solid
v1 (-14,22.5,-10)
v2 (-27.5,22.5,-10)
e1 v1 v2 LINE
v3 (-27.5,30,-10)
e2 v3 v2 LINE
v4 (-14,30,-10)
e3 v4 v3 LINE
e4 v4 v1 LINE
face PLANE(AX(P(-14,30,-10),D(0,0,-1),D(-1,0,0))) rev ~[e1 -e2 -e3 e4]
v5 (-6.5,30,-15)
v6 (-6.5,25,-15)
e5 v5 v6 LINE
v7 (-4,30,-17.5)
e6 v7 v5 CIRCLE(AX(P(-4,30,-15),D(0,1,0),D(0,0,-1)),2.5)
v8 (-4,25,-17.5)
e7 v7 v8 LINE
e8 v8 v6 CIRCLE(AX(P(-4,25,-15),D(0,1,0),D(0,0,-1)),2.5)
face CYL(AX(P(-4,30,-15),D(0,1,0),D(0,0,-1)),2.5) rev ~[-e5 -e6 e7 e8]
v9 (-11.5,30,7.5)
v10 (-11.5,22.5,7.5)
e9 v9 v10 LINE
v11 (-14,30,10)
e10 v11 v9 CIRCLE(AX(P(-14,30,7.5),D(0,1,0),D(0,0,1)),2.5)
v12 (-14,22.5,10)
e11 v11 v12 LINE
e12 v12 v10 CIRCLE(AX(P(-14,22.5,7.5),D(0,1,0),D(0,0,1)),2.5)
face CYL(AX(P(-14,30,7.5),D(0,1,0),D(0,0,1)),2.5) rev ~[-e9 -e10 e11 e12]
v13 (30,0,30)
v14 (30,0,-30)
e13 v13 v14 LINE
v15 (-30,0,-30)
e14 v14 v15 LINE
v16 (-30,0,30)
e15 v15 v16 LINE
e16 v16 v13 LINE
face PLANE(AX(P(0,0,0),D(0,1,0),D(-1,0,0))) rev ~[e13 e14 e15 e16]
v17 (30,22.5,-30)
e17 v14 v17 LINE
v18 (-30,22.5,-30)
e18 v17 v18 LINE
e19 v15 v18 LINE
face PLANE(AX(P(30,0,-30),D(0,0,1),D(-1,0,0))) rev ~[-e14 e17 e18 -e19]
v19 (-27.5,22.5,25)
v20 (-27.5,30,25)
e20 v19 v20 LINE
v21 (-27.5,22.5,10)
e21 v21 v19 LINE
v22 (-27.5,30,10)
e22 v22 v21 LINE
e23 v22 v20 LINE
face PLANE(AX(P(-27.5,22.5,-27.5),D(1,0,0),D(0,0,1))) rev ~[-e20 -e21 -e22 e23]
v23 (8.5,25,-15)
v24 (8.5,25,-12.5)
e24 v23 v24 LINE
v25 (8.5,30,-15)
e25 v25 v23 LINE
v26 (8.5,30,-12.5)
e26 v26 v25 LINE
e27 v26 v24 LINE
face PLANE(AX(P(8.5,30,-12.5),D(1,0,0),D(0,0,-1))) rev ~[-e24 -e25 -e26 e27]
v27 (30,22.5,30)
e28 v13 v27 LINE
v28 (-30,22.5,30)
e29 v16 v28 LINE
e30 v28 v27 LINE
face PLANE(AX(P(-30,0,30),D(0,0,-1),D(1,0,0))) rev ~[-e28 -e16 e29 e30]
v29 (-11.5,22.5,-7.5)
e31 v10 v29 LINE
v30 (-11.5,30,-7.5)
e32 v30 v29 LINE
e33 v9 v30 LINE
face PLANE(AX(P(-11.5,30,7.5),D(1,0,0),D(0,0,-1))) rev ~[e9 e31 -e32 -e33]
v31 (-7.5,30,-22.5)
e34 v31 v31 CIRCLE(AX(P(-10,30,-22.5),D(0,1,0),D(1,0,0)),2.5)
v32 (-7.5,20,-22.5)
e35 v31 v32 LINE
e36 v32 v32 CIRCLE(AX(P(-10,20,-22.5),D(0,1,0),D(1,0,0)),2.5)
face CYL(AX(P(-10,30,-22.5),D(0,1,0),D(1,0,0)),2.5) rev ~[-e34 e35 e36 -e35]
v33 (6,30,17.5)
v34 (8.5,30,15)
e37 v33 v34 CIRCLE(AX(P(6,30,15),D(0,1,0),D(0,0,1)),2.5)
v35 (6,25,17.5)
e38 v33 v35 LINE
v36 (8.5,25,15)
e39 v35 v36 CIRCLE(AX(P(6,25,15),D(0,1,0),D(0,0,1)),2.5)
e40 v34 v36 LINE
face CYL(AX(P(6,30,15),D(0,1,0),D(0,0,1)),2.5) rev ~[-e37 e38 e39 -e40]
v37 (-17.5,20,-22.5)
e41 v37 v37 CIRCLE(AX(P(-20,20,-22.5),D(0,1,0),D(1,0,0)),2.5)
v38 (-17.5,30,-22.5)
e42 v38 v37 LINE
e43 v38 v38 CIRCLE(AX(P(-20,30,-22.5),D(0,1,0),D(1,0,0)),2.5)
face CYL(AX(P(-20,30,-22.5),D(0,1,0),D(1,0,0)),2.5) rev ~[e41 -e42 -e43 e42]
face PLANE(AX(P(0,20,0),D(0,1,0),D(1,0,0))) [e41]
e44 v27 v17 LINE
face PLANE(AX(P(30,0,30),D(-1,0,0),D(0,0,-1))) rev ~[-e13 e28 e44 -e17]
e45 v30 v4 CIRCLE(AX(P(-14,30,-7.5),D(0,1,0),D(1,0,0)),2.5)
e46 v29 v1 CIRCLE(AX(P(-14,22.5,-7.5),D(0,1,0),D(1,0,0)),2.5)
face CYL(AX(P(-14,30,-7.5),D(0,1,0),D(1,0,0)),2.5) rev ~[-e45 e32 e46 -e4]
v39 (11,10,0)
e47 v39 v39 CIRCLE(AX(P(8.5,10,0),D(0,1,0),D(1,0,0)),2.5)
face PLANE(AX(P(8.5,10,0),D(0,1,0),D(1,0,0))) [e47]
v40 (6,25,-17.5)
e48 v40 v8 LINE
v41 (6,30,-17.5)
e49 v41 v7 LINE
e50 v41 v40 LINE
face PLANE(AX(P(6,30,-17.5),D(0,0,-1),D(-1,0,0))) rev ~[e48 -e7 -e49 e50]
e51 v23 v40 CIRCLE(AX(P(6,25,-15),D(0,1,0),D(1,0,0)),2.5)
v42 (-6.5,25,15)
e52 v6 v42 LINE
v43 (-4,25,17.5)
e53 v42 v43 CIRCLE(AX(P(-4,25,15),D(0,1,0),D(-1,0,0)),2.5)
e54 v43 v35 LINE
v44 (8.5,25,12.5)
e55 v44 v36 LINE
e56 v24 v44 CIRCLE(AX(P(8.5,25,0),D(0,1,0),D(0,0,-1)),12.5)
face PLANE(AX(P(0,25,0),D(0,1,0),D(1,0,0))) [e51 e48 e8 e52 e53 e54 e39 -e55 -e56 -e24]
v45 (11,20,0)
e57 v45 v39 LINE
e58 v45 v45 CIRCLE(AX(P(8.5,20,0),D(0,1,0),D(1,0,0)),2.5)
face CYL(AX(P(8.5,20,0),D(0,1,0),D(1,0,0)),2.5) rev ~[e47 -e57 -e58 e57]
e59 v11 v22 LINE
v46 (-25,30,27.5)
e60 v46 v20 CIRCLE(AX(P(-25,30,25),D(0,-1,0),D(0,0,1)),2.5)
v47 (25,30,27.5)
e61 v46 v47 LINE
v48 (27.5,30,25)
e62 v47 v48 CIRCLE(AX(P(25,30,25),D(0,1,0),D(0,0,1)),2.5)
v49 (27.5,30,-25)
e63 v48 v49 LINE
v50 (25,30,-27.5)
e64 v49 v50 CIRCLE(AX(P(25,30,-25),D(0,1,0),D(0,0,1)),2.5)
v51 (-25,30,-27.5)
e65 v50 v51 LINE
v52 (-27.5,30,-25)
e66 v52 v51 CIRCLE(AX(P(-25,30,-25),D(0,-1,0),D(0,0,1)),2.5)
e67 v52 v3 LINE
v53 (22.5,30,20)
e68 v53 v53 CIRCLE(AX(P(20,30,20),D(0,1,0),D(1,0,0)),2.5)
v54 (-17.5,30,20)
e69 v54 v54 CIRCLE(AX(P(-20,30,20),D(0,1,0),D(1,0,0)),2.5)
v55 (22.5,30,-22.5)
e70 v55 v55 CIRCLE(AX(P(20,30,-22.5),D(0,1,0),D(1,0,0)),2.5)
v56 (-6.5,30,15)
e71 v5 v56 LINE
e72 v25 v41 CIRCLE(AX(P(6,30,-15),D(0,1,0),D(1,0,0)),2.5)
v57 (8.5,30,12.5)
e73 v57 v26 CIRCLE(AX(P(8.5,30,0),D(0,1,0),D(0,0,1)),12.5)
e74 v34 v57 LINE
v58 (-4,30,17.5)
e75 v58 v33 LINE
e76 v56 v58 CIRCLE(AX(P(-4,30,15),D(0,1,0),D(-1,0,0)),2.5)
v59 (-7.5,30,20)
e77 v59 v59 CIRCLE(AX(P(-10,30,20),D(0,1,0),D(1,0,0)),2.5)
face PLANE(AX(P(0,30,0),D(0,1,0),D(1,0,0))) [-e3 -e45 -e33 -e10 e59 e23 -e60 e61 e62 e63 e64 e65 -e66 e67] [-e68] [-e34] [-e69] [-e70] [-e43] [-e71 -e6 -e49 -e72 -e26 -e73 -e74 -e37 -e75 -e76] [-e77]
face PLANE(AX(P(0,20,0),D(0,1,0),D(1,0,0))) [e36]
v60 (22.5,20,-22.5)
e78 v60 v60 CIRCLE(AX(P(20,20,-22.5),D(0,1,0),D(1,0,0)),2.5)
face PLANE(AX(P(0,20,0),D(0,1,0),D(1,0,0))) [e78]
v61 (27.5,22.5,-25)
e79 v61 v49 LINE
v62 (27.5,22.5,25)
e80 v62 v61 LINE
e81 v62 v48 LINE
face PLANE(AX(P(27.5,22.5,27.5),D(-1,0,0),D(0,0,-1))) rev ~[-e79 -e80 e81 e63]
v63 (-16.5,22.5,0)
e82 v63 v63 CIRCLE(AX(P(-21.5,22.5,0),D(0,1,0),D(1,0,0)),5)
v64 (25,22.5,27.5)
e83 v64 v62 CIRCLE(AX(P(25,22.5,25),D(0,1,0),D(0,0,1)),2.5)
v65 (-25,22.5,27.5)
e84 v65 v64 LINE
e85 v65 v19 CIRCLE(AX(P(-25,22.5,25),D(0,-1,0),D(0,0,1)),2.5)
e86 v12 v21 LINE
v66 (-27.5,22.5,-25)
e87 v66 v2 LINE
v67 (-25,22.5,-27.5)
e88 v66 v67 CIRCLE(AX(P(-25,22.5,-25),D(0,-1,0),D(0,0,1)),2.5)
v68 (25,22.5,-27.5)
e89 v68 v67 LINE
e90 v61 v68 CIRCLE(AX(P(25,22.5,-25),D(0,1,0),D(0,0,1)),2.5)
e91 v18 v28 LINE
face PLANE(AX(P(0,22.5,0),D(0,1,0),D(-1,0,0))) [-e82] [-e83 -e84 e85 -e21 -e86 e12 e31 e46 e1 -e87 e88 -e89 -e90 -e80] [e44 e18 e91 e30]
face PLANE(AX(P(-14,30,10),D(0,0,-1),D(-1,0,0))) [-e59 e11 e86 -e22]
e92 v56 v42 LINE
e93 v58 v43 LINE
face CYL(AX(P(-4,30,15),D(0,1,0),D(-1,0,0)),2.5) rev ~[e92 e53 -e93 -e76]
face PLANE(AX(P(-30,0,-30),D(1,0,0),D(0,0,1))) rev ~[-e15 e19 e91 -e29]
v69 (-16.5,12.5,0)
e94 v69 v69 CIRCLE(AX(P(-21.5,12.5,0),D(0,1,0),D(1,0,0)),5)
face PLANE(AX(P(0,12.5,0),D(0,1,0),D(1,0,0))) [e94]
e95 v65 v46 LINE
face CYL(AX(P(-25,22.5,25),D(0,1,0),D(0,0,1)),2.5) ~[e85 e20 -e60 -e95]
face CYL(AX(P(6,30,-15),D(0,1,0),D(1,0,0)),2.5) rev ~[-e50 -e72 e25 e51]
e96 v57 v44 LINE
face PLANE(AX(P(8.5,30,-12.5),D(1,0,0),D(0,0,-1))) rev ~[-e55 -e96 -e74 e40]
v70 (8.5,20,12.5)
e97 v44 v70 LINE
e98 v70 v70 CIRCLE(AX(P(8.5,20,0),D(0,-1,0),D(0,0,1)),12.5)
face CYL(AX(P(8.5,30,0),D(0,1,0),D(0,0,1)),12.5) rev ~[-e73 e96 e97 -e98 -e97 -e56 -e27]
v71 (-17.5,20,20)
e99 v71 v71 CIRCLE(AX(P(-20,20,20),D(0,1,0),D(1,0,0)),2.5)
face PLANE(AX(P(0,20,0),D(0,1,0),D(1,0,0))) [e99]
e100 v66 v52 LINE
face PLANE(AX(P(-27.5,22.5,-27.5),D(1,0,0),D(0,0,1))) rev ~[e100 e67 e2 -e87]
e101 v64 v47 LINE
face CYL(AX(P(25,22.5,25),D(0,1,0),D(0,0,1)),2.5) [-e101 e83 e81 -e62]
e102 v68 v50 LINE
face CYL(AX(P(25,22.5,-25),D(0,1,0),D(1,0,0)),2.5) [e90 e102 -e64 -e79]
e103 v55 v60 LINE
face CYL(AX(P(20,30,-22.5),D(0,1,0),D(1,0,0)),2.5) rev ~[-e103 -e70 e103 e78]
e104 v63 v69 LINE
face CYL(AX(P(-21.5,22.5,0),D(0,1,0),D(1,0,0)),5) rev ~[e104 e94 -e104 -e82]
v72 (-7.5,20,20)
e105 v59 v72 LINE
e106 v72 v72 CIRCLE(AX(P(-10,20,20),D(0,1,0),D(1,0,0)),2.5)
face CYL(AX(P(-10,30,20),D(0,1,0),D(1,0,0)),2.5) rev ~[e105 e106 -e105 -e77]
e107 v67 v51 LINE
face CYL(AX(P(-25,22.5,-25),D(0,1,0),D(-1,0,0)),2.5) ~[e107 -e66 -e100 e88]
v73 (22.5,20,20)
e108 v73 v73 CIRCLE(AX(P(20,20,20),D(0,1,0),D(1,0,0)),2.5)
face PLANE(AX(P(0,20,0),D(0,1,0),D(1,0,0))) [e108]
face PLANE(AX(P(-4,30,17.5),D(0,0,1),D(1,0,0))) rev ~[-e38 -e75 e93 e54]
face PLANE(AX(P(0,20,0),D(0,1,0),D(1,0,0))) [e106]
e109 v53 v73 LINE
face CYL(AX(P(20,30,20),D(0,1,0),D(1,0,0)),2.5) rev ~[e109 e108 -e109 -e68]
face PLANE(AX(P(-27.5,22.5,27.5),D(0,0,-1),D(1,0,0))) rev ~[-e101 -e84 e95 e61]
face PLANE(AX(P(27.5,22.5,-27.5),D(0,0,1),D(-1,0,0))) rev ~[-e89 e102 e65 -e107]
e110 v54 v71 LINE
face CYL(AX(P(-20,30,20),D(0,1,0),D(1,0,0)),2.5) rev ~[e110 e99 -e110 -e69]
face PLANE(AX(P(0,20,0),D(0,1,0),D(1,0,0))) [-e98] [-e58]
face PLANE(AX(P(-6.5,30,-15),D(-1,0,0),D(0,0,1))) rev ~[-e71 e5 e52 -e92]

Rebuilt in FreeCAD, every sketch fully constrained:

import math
import FreeCAD as App
import Part
import Sketcher

V = App.Vector
Q = App.Units.Quantity


def edges_at(feature, points):
    """Names of the edges that pass closest to the given points."""
    edges = feature.Shape.Edges
    near = lambda p: min(range(len(edges)), key=lambda i: edges[i].distToShape(Part.Vertex(*p))[0])
    return sorted({f"Edge{near(p) + 1}" for p in points})


def add_polygon(sketch, points):
    """Adds a closed chain of lines whose ends are joined by coincident constraints."""
    first, n = sketch.GeometryCount, len(points)
    for a, b in zip(points, points[1:] + points[:1]):
        sketch.addGeometry(Part.LineSegment(App.Vector(*a, 0), App.Vector(*b, 0)), False)
    for i in range(n):
        sketch.addConstraint(Sketcher.Constraint("Coincident", first + i, 2, first + (i + 1) % n, 1))

doc = App.newDocument("Part")
body = doc.addObject("PartDesign::Body", "Body")

sketch1 = body.newObject("Sketcher::SketchObject", "Sketch")
sketch1.AttachmentSupport = (doc.getObject("XZ_Plane"), [""])
sketch1.MapMode = "FlatFace"
add_polygon(sketch1, [(-30, -30), (-30, 30), (30, 30), (30, -30)])
sketch1.addConstraint([
    Sketcher.Constraint("Vertical", 0),
    Sketcher.Constraint("Horizontal", 1),
    Sketcher.Constraint("Vertical", 2),
    Sketcher.Constraint("Horizontal", 3),
    Sketcher.Constraint("Symmetric", 0, 2, 2, 2, -1, 1),
    Sketcher.Constraint("Equal", 3, 0),
    Sketcher.Constraint("DistanceX", 1, 1, 1, 2, Q("60 mm")),
])
pad1 = body.newObject("PartDesign::Pad", "Pad")
pad1.Profile = sketch1
pad1.Length = 22.5
pad1.Reversed = True

sketch2 = body.newObject("Sketcher::SketchObject", "Sketch001")
sketch2.AttachmentSupport = (doc.getObject("XZ_Plane"), [""])
sketch2.MapMode = "FlatFace"
sketch2.AttachmentOffset = App.Placement(V(0, 0, -22.5), App.Rotation())
add_polygon(sketch2, [(-27.5, -27.5), (-27.5, 27.5), (27.5, 27.5), (27.5, -27.5)])
sketch2.addConstraint([
    Sketcher.Constraint("Vertical", 0),
    Sketcher.Constraint("Horizontal", 1),
    Sketcher.Constraint("Vertical", 2),
    Sketcher.Constraint("Horizontal", 3),
    Sketcher.Constraint("Symmetric", 0, 2, 2, 2, -1, 1),
    Sketcher.Constraint("Equal", 3, 0),
    Sketcher.Constraint("DistanceX", 1, 1, 1, 2, Q("55 mm")),
])
pad2 = body.newObject("PartDesign::Pad", "Pad001")
pad2.Profile = sketch2
pad2.Length = 7.5
pad2.Reversed = True

sketch3 = body.newObject("Sketcher::SketchObject", "Sketch002")
sketch3.AttachmentSupport = (doc.getObject("XZ_Plane"), [""])
sketch3.MapMode = "FlatFace"
sketch3.AttachmentOffset = App.Placement(V(0, 0, -30), App.Rotation())
sketch3.addGeometry([
    Part.Circle(V(20, -22.5, 0), V(0, 0, 1), 2.5),
    Part.Circle(V(-20, -22.5, 0), V(0, 0, 1), 2.5),
    Part.Circle(V(20, 20, 0), V(0, 0, 1), 2.5),
    Part.Circle(V(-20, 20, 0), V(0, 0, 1), 2.5),
    Part.Circle(V(-10, 20, 0), V(0, 0, 1), 2.5),
    Part.Circle(V(-10, -22.5, 0), V(0, 0, 1), 2.5),
], False)
sketch3.addConstraint([
    Sketcher.Constraint("Equal", 0, 1),
    Sketcher.Constraint("Equal", 1, 2),
    Sketcher.Constraint("Equal", 2, 3),
    Sketcher.Constraint("Equal", 3, 4),
    Sketcher.Constraint("Equal", 4, 5),
    Sketcher.Constraint("Symmetric", 0, 3, 1, 3, -2),
    Sketcher.Constraint("Symmetric", 2, 3, 3, 3, -2),
    Sketcher.Constraint("Horizontal", 3, 3, 4, 3),
    Sketcher.Constraint("Horizontal", 1, 3, 5, 3),
    Sketcher.Constraint("Vertical", 0, 3, 2, 3),
    Sketcher.Constraint("Vertical", 4, 3, 5, 3),
    Sketcher.Constraint("Diameter", 0, Q("5 mm")),
    Sketcher.Constraint("DistanceX", 4, 3, -1, 1, Q("10 mm")),
    Sketcher.Constraint("DistanceX", 1, 3, 0, 3, Q("40 mm")),
    Sketcher.Constraint("DistanceY", -1, 1, 2, 3, Q("20 mm")),
    Sketcher.Constraint("DistanceY", 0, 3, -1, 1, Q("22.5 mm")),
])
pocket1 = body.newObject("PartDesign::Pocket", "Pocket")
pocket1.Profile = sketch3
pocket1.Length = 10
pocket1.Reversed = True

sketch4 = body.newObject("Sketcher::SketchObject", "Sketch003")
sketch4.AttachmentSupport = (doc.getObject("XZ_Plane"), [""])
sketch4.MapMode = "FlatFace"
sketch4.AttachmentOffset = App.Placement(V(0, 0, -30), App.Rotation())
sketch4.addGeometry([
    Part.LineSegment(V(8.5, -12.5, 0), V(8.5, 12.5, 0)),
    Part.ArcOfCircle(Part.Circle(V(8.5, 0, 0), V(0, 0, 1), 12.5), math.radians(-90), math.radians(90)),
], False)
sketch4.addConstraint([
    Sketcher.Constraint("Coincident", 0, 1, 1, 1),
    Sketcher.Constraint("Coincident", 1, 2, 0, 2),
    Sketcher.Constraint("Vertical", 0),
    Sketcher.Constraint("PointOnObject", 1, 3, -1),
    Sketcher.Constraint("Vertical", 1, 3, 0, 1),
    Sketcher.Constraint("Radius", 1, Q("12.5 mm")),
    Sketcher.Constraint("DistanceX", -1, 1, 1, 3, Q("8.5 mm")),
])
pocket2 = body.newObject("PartDesign::Pocket", "Pocket001")
pocket2.Profile = sketch4
pocket2.Length = 10
pocket2.Reversed = True

sketch5 = body.newObject("Sketcher::SketchObject", "Sketch004")
sketch5.AttachmentSupport = (doc.getObject("XZ_Plane"), [""])
sketch5.MapMode = "FlatFace"
sketch5.AttachmentOffset = App.Placement(V(0, 0, -30), App.Rotation())
sketch5.addGeometry([
    Part.ArcOfCircle(Part.Circle(V(-4, 15, 0), V(0, 0, 1), 2.5), math.radians(90), math.radians(180)),
    Part.LineSegment(V(-4, 17.5, 0), V(6, 17.5, 0)),
    Part.ArcOfCircle(Part.Circle(V(6, 15, 0), V(0, 0, 1), 2.5), math.radians(0), math.radians(90)),
    Part.LineSegment(V(8.5, 15, 0), V(8.5, -15, 0)),
    Part.ArcOfCircle(Part.Circle(V(6, -15, 0), V(0, 0, 1), 2.5), math.radians(-90), math.radians(0)),
    Part.LineSegment(V(6, -17.5, 0), V(-4, -17.5, 0)),
    Part.ArcOfCircle(Part.Circle(V(-4, -15, 0), V(0, 0, 1), 2.5), math.radians(180), math.radians(270)),
    Part.LineSegment(V(-6.5, -15, 0), V(-6.5, 15, 0)),
], False)
sketch5.addConstraint([
    Sketcher.Constraint("Tangent", 0, 1, 1, 1),
    Sketcher.Constraint("Tangent", 1, 2, 2, 2),
    Sketcher.Constraint("Tangent", 2, 1, 3, 1),
    Sketcher.Constraint("Tangent", 3, 2, 4, 2),
    Sketcher.Constraint("Tangent", 4, 1, 5, 1),
    Sketcher.Constraint("Tangent", 5, 2, 6, 2),
    Sketcher.Constraint("Tangent", 6, 1, 7, 1),
    Sketcher.Constraint("Tangent", 7, 2, 0, 2),
    Sketcher.Constraint("Horizontal", 1),
    Sketcher.Constraint("Vertical", 3),
    Sketcher.Constraint("Horizontal", 5),
    Sketcher.Constraint("Vertical", 7),
    Sketcher.Constraint("Equal", 0, 2),
    Sketcher.Constraint("Equal", 2, 4),
    Sketcher.Constraint("Equal", 4, 6),
    Sketcher.Constraint("Radius", 0, Q("2.5 mm")),
    Sketcher.Constraint("DistanceX", 1, 1, 1, 2, Q("10 mm")),
    Sketcher.Constraint("DistanceY", 3, 2, 3, 1, Q("30 mm")),
    Sketcher.Constraint("DistanceX", 0, 3, -1, 1, Q("4 mm")),
    Sketcher.Constraint("DistanceY", -1, 1, 0, 3, Q("15 mm")),
])
pocket3 = body.newObject("PartDesign::Pocket", "Pocket002")
pocket3.Profile = sketch5
pocket3.Length = 5
pocket3.Reversed = True

sketch6 = body.newObject("Sketcher::SketchObject", "Sketch005")
sketch6.AttachmentSupport = (doc.getObject("XZ_Plane"), [""])
sketch6.MapMode = "FlatFace"
sketch6.AttachmentOffset = App.Placement(V(0, 0, -25), App.Rotation())
sketch6.addGeometry([
    Part.ArcOfCircle(Part.Circle(V(8.5, 0, 0), V(0, 0, 1), 12.5), math.radians(90), math.radians(270)),
    Part.LineSegment(V(8.5, 12.5, 0), V(8.5, -12.5, 0)),
], False)
sketch6.addConstraint([
    Sketcher.Constraint("Coincident", 0, 1, 1, 1),
    Sketcher.Constraint("Coincident", 1, 2, 0, 2),
    Sketcher.Constraint("Vertical", 1),
    Sketcher.Constraint("PointOnObject", 0, 3, -1),
    Sketcher.Constraint("Radius", 0, Q("12.5 mm")),
    Sketcher.Constraint("DistanceX", -1, 1, 0, 3, Q("8.5 mm")),
    Sketcher.Constraint("DistanceX", -1, 1, 0, 1, Q("8.5 mm")),
])
pocket4 = body.newObject("PartDesign::Pocket", "Pocket003")
pocket4.Profile = sketch6
pocket4.Length = 5
pocket4.Reversed = True

sketch7 = body.newObject("Sketcher::SketchObject", "Sketch006")
sketch7.AttachmentSupport = (doc.getObject("XZ_Plane"), [""])
sketch7.MapMode = "FlatFace"
sketch7.AttachmentOffset = App.Placement(V(0, 0, -20), App.Rotation())
sketch7.addGeometry(Part.Circle(V(8.5, 0, 0), V(0, 0, 1), 2.5), False)
sketch7.addConstraint([
    Sketcher.Constraint("PointOnObject", 0, 3, -1),
    Sketcher.Constraint("Diameter", 0, Q("5 mm")),
    Sketcher.Constraint("DistanceX", -1, 1, 0, 3, Q("8.5 mm")),
])
pocket5 = body.newObject("PartDesign::Pocket", "Pocket004")
pocket5.Profile = sketch7
pocket5.Length = 10
pocket5.Reversed = True

sketch8 = body.newObject("Sketcher::SketchObject", "Sketch007")
sketch8.AttachmentSupport = (doc.getObject("XZ_Plane"), [""])
sketch8.MapMode = "FlatFace"
sketch8.AttachmentOffset = App.Placement(V(0, 0, -30), App.Rotation())
sketch8.addGeometry([
    Part.LineSegment(V(-27.5, -10, 0), V(-27.5, 10, 0)),
    Part.LineSegment(V(-27.5, 10, 0), V(-14, 10, 0)),
    Part.ArcOfCircle(Part.Circle(V(-14, 7.5, 0), V(0, 0, 1), 2.5), math.radians(0), math.radians(90)),
    Part.LineSegment(V(-11.5, 7.5, 0), V(-11.5, -7.5, 0)),
    Part.ArcOfCircle(Part.Circle(V(-14, -7.5, 0), V(0, 0, 1), 2.5), math.radians(-90), math.radians(0)),
    Part.LineSegment(V(-14, -10, 0), V(-27.5, -10, 0)),
], False)
sketch8.addConstraint([
    Sketcher.Constraint("Coincident", 0, 2, 1, 1),
    Sketcher.Constraint("Tangent", 1, 2, 2, 2),
    Sketcher.Constraint("Tangent", 2, 1, 3, 1),
    Sketcher.Constraint("Tangent", 3, 2, 4, 2),
    Sketcher.Constraint("Tangent", 4, 1, 5, 1),
    Sketcher.Constraint("Coincident", 5, 2, 0, 1),
    Sketcher.Constraint("Vertical", 0),
    Sketcher.Constraint("Horizontal", 1),
    Sketcher.Constraint("Vertical", 3),
    Sketcher.Constraint("Horizontal", 5),
    Sketcher.Constraint("Equal", 2, 4),
    Sketcher.Constraint("DistanceY", 0, 1, 0, 2, Q("20 mm")),
    Sketcher.Constraint("DistanceY", -1, 1, 0, 2, Q("10 mm")),
    Sketcher.Constraint("Radius", 2, Q("2.5 mm")),
    Sketcher.Constraint("DistanceX", 1, 1, 1, 2, Q("13.5 mm")),
    Sketcher.Constraint("DistanceX", 2, 3, -1, 1, Q("14 mm")),
])
pocket6 = body.newObject("PartDesign::Pocket", "Pocket005")
pocket6.Profile = sketch8
pocket6.Length = 7.5
pocket6.Reversed = True

sketch9 = body.newObject("Sketcher::SketchObject", "Sketch008")
sketch9.AttachmentSupport = (doc.getObject("XZ_Plane"), [""])
sketch9.MapMode = "FlatFace"
sketch9.AttachmentOffset = App.Placement(V(0, 0, -22.5), App.Rotation())
sketch9.addGeometry(Part.Circle(V(-21.5, 0, 0), V(0, 0, 1), 5), False)
sketch9.addConstraint([
    Sketcher.Constraint("PointOnObject", 0, 3, -1),
    Sketcher.Constraint("Diameter", 0, Q("10 mm")),
    Sketcher.Constraint("DistanceX", 0, 3, -1, 1, Q("21.5 mm")),
])
pocket7 = body.newObject("PartDesign::Pocket", "Pocket006")
pocket7.Profile = sketch9
pocket7.Length = 10
pocket7.Reversed = True
doc.recompute()

fillet = body.newObject("PartDesign::Fillet", "Fillet")
fillet.Base = (pocket7, edges_at(pocket7, [(-27.5, 26.25, -27.5)]))
fillet.Radius = 2.5
doc.recompute()

fillet2 = body.newObject("PartDesign::Fillet", "Fillet001")
fillet2.Base = (fillet, edges_at(fillet, [(-27.5, 26.25, 27.5)]))
fillet2.Radius = 2.5
doc.recompute()

fillet3 = body.newObject("PartDesign::Fillet", "Fillet002")
fillet3.Base = (fillet2, edges_at(fillet2, [(27.5, 26.25, 27.5)]))
fillet3.Radius = 2.5
doc.recompute()

fillet4 = body.newObject("PartDesign::Fillet", "Fillet003")
fillet4.Base = (fillet3, edges_at(fillet3, [(27.5, 26.25, -27.5)]))
fillet4.Radius = 2.5

doc.recompute()
